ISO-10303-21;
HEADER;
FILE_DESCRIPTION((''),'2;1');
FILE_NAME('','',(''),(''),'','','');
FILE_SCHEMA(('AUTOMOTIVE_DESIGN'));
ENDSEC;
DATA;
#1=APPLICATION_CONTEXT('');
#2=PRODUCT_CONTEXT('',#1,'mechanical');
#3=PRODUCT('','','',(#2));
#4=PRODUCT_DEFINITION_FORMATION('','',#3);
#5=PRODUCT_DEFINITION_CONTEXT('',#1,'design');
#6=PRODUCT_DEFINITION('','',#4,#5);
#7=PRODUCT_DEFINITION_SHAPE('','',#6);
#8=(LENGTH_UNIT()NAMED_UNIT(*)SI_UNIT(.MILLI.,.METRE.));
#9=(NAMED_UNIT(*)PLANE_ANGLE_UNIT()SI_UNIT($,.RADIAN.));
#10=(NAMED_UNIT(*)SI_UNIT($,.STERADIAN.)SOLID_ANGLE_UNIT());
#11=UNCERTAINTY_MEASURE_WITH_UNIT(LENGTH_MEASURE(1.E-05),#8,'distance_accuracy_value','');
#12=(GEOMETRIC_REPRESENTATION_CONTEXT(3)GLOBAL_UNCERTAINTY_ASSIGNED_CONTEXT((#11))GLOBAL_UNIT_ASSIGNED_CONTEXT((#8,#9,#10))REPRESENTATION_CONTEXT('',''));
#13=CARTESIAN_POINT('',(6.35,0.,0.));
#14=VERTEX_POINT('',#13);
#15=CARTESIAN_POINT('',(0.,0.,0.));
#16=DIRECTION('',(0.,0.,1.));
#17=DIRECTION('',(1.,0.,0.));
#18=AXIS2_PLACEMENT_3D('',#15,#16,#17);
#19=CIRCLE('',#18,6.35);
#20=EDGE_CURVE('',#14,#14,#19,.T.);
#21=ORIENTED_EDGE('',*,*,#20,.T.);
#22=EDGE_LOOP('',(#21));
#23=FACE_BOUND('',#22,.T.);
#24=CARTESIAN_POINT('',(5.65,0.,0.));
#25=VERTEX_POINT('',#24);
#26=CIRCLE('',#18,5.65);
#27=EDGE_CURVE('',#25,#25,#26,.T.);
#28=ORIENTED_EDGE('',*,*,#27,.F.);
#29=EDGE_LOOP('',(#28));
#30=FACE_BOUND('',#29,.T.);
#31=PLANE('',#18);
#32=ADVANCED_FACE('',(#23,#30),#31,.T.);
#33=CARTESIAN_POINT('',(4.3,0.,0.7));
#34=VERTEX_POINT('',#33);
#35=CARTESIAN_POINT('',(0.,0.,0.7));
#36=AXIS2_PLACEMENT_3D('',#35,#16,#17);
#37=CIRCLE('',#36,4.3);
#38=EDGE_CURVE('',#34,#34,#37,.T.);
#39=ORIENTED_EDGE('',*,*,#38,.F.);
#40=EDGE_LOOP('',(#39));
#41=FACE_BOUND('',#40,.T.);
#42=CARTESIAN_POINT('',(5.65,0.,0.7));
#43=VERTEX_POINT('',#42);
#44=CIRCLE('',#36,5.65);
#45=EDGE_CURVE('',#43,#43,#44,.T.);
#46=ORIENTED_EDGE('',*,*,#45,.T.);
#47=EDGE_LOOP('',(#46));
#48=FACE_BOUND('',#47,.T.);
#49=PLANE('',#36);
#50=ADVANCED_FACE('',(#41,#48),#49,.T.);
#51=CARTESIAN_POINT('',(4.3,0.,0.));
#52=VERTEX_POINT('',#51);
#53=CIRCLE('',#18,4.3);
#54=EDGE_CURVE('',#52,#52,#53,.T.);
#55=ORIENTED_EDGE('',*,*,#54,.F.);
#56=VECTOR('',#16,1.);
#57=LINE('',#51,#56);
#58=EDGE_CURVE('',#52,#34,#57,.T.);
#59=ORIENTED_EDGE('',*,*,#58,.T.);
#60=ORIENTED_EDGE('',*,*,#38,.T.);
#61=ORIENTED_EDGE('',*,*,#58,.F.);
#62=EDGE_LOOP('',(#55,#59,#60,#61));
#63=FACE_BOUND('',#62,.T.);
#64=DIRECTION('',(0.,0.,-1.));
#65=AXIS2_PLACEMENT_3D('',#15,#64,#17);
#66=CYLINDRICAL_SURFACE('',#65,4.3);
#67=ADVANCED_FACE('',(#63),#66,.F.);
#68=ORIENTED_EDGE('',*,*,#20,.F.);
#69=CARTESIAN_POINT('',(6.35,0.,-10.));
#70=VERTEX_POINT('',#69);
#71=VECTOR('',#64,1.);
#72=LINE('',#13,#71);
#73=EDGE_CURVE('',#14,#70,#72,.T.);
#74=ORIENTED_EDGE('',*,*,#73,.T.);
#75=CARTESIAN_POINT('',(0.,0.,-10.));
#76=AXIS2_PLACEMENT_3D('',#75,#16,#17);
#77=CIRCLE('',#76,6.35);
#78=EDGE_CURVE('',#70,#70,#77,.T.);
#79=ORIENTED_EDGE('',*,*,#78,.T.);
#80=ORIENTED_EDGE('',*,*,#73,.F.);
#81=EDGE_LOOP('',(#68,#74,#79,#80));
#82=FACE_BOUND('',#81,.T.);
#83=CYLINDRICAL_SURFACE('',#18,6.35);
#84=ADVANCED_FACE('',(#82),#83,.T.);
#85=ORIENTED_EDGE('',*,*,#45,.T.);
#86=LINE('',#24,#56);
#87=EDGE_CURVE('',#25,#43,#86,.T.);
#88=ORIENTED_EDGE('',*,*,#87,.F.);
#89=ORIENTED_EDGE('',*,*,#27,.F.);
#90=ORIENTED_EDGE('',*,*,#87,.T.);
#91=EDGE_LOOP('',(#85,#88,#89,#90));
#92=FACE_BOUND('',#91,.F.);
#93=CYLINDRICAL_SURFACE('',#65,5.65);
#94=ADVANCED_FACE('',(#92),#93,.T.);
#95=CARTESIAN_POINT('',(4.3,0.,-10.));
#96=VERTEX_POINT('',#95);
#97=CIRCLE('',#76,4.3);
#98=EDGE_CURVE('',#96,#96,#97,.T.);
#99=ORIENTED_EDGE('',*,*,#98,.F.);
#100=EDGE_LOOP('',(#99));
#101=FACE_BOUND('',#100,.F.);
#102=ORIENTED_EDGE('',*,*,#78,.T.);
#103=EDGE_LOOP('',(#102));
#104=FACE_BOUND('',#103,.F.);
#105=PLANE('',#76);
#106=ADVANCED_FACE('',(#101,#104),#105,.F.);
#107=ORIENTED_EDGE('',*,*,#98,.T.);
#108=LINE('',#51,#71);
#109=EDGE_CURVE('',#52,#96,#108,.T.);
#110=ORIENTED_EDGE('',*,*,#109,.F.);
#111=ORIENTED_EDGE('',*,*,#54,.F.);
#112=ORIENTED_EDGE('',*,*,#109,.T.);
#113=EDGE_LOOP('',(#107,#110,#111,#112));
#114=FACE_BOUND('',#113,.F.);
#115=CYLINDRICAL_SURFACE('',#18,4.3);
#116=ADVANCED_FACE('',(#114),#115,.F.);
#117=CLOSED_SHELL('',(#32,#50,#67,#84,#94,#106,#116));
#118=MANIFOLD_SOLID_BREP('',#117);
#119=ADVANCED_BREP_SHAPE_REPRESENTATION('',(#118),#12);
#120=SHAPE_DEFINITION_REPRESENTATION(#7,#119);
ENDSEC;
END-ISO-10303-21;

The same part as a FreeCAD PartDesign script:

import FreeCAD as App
import Part
import Sketcher
from FreeCAD import Vector
Q = App.Units.Quantity

doc = App.newDocument("Part")
body = doc.addObject("PartDesign::Body", "Body")

# Sketch on XY plane
sketch1 = body.newObject("Sketcher::SketchObject", "Sketch")
sketch1.AttachmentSupport = (doc.getObject("XY_Plane"), [""])
sketch1.MapMode = "FlatFace"
sketch1.addGeometry([
    Part.Circle(Vector(0, 0, 0), Vector(0, 0, 1), 5.7),
    Part.Circle(Vector(0, 0, 0), Vector(0, 0, 1), 4.3),
], False)
sketch1.addConstraint([
    Sketcher.Constraint("Coincident", 0, 3, -1, 1),
    Sketcher.Constraint("Coincident", 1, 3, -1, 1),
    Sketcher.Constraint("Diameter", 0, Q("11.3 mm")),
    Sketcher.Constraint("Diameter", 1, Q("8.6 mm")),
])
pad1 = body.newObject("PartDesign::Pad", "Pad")
pad1.Profile = sketch1
pad1.Length = 0.7

# Sketch on XY plane
sketch2 = body.newObject("Sketcher::SketchObject", "Sketch001")
sketch2.AttachmentSupport = (doc.getObject("XY_Plane"), [""])
sketch2.MapMode = "FlatFace"
sketch2.addGeometry([
    Part.Circle(Vector(0, 0, 0), Vector(0, 0, 1), 6.3),
    Part.Circle(Vector(0, 0, 0), Vector(0, 0, 1), 4.3),
], False)
sketch2.addConstraint([
    Sketcher.Constraint("Coincident", 0, 3, -1, 1),
    Sketcher.Constraint("Coincident", 1, 3, -1, 1),
    Sketcher.Constraint("Diameter", 0, Q("12.7 mm")),
    Sketcher.Constraint("Diameter", 1, Q("8.6 mm")),
])
pad2 = body.newObject("PartDesign::Pad", "Pad001")
pad2.Profile = sketch2
pad2.Length = 10
pad2.Reversed = True

doc.recompute()
